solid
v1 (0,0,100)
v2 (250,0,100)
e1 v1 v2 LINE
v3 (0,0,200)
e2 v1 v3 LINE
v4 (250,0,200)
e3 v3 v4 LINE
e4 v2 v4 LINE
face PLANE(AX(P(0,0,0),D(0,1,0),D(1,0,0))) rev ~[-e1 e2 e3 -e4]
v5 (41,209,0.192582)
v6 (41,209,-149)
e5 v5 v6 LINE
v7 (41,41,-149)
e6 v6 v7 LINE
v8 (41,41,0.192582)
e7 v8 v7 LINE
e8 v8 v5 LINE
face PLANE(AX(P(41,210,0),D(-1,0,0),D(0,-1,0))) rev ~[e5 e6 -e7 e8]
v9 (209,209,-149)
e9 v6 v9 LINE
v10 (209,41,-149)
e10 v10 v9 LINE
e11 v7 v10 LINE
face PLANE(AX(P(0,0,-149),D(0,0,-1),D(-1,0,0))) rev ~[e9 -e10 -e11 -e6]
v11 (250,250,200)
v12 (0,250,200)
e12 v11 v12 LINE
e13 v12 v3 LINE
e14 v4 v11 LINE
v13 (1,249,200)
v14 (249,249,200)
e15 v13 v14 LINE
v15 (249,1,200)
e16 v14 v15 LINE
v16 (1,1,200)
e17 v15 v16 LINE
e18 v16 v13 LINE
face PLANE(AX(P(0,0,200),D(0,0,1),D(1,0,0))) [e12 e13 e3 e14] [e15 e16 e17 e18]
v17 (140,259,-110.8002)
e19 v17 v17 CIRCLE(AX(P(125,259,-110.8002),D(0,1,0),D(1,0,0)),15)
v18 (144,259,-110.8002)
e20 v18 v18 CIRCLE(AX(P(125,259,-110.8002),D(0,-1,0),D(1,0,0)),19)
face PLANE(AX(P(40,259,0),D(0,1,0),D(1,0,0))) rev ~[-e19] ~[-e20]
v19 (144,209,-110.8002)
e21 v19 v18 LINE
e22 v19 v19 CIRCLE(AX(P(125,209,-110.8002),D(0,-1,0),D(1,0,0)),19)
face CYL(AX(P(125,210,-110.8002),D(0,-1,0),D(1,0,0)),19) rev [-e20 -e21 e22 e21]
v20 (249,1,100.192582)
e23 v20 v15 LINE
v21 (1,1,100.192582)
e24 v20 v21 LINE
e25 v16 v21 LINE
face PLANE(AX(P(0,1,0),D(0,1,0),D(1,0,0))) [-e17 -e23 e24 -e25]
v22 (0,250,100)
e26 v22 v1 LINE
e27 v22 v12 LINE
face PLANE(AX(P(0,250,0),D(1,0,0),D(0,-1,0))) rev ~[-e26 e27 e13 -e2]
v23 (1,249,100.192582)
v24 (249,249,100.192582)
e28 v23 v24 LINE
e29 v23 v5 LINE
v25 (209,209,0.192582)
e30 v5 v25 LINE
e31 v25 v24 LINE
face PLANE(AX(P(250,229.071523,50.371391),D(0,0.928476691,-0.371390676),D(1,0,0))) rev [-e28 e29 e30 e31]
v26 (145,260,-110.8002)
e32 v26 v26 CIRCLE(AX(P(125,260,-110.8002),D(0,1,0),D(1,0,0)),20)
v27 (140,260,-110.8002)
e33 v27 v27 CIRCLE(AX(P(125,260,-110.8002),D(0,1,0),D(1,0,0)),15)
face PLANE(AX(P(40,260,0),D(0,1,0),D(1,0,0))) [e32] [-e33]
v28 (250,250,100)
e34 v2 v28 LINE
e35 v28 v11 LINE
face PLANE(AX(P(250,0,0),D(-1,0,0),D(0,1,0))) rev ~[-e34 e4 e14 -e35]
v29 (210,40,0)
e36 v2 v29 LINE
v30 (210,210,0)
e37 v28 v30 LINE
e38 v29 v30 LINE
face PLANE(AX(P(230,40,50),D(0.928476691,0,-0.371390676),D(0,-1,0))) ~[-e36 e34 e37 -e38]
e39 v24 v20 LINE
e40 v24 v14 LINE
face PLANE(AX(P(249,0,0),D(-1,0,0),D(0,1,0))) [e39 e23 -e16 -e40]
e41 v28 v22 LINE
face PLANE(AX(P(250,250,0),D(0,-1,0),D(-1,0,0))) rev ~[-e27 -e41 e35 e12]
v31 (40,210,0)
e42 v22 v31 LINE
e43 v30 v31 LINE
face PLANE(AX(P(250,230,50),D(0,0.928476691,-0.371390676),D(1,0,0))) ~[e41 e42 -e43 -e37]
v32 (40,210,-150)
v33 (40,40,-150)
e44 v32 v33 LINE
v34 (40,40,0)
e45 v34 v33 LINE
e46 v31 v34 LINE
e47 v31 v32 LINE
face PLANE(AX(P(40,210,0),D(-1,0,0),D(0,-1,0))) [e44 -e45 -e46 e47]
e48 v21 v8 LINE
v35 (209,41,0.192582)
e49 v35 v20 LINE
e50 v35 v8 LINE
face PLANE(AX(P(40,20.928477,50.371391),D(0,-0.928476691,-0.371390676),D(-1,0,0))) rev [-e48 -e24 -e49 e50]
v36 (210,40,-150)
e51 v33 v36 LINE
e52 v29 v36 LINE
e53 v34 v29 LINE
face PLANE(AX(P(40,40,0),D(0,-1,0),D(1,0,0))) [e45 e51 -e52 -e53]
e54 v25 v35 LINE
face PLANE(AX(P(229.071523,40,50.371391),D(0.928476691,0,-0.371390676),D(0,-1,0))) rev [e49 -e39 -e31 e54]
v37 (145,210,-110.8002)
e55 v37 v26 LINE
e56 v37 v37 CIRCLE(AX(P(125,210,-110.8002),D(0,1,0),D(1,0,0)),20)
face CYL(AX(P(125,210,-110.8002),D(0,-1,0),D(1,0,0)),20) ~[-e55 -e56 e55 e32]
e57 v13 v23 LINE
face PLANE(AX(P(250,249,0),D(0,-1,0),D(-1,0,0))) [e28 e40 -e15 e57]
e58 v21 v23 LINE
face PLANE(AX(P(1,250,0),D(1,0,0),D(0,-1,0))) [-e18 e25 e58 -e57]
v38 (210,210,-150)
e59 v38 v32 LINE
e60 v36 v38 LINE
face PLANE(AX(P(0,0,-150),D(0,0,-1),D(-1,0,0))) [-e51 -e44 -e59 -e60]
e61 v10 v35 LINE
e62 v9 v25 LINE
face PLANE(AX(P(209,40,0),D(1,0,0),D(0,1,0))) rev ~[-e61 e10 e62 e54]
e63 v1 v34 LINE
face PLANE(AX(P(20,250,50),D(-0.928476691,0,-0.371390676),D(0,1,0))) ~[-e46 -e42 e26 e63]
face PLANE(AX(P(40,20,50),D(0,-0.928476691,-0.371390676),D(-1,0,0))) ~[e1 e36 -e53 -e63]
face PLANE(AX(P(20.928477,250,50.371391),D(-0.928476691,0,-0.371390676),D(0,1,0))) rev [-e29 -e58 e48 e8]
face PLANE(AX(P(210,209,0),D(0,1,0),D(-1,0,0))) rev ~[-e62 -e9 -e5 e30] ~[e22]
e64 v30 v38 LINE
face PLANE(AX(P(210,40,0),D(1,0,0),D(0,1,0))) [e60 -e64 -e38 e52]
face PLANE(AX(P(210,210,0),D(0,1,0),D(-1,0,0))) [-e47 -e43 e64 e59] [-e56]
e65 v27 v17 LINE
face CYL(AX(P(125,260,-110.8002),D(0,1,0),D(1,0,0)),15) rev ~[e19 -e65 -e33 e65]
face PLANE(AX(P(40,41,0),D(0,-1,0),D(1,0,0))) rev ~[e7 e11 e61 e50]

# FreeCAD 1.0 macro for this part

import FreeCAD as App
import Part
import Sketcher
Q = App.Units.Quantity


def edges_at(feature, points):
    """Names of the edges that pass closest to the given points."""
    edges = feature.Shape.Edges
    near = lambda p: min(range(len(edges)), key=lambda i: edges[i].distToShape(Part.Vertex(*p))[0])
    return sorted({f"Edge{near(p) + 1}" for p in points})


def faces_at(feature, points):
    """Names of the faces that lie closest to the given points."""
    faces = feature.Shape.Faces
    near = lambda p: min(range(len(faces)), key=lambda i: faces[i].distToShape(Part.Vertex(*p))[0])
    return sorted({f"Face{near(p) + 1}" for p in points})

doc = App.newDocument("Part")
body = doc.addObject("PartDesign::Body", "Body")

# Sketch on XY plane
sketch1 = body.newObject("Sketcher::SketchObject", "Sketch")
sketch1.AttachmentSupport = (doc.getObject("XY_Plane"), [""])
sketch1.MapMode = "FlatFace"
sketch1.addGeometry([
    Part.LineSegment(App.Vector(0, 250, 0), App.Vector(0, 0, 0)),
    Part.LineSegment(App.Vector(0, 0, 0), App.Vector(250, 0, 0)),
    Part.LineSegment(App.Vector(250, 0, 0), App.Vector(250, 250, 0)),
    Part.LineSegment(App.Vector(250, 250, 0), App.Vector(0, 250, 0)),
], False)
sketch1.addConstraint([
    Sketcher.Constraint("Coincident", 0, 2, 1, 1),
    Sketcher.Constraint("Coincident", 1, 2, 2, 1),
    Sketcher.Constraint("Coincident", 2, 2, 3, 1),
    Sketcher.Constraint("Coincident", 3, 2, 0, 1),
    Sketcher.Constraint("Vertical", 0),
    Sketcher.Constraint("Horizontal", 1),
    Sketcher.Constraint("Vertical", 2),
    Sketcher.Constraint("Horizontal", 3),
    Sketcher.Constraint("Coincident", 0, 2, -1, 1),
    Sketcher.Constraint("Equal", 3, 0),
    Sketcher.Constraint("DistanceX", 1, 1, 1, 2, Q("250 mm")),
])
pad1 = body.newObject("PartDesign::Pad", "Pad")
pad1.Profile = sketch1
pad1.Length = 200
doc.recompute()

chamfer = body.newObject("PartDesign::Chamfer", "Chamfer")
chamfer.Base = (pad1, edges_at(pad1, [(0, 125, 0)]))
chamfer.ChamferType = "Two distances"
chamfer.Size = 100
chamfer.Size2 = 40
doc.recompute()

chamfer2 = body.newObject("PartDesign::Chamfer", "Chamfer001")
chamfer2.Base = (chamfer, edges_at(chamfer, [(145, 0, 0)]))
chamfer2.ChamferType = "Two distances"
chamfer2.Size = 100
chamfer2.Size2 = 40
doc.recompute()

chamfer3 = body.newObject("PartDesign::Chamfer", "Chamfer002")
chamfer3.Base = (chamfer2, edges_at(chamfer2, [(145, 250, 0)]))
chamfer3.ChamferType = "Two distances"
chamfer3.Size = 100
chamfer3.Size2 = 40
chamfer3.FlipDirection = True
doc.recompute()

chamfer4 = body.newObject("PartDesign::Chamfer", "Chamfer003")
chamfer4.Base = (chamfer3, edges_at(chamfer3, [(250, 125, 0)]))
chamfer4.ChamferType = "Two distances"
chamfer4.Size = 100
chamfer4.Size2 = 40
chamfer4.FlipDirection = True

# Sketch on XY plane
sketch2 = body.newObject("Sketcher::SketchObject", "Sketch001")
sketch2.AttachmentSupport = (doc.getObject("XY_Plane"), [""])
sketch2.MapMode = "FlatFace"
sketch2.addGeometry([
    Part.LineSegment(App.Vector(210, 40, 0), App.Vector(40, 40, 0)),
    Part.LineSegment(App.Vector(40, 40, 0), App.Vector(40, 210, 0)),
    Part.LineSegment(App.Vector(40, 210, 0), App.Vector(210, 210, 0)),
    Part.LineSegment(App.Vector(210, 210, 0), App.Vector(210, 40, 0)),
], False)
sketch2.addConstraint([
    Sketcher.Constraint("Coincident", 0, 2, 1, 1),
    Sketcher.Constraint("Coincident", 1, 2, 2, 1),
    Sketcher.Constraint("Coincident", 2, 2, 3, 1),
    Sketcher.Constraint("Coincident", 3, 2, 0, 1),
    Sketcher.Constraint("Horizontal", 0),
    Sketcher.Constraint("Vertical", 1),
    Sketcher.Constraint("Horizontal", 2),
    Sketcher.Constraint("Vertical", 3),
    Sketcher.Constraint("Equal", 2, 1),
    Sketcher.Constraint("DistanceX", 0, 2, 0, 1, Q("170 mm")),
    Sketcher.Constraint("DistanceX", -1, 1, 0, 2, Q("40 mm")),
    Sketcher.Constraint("DistanceY", -1, 1, 0, 2, Q("40 mm")),
])
pad2 = body.newObject("PartDesign::Pad", "Pad001")
pad2.Profile = sketch2
pad2.Length = 150
pad2.Reversed = True

# Sketch on XZ plane
sketch3 = body.newObject("Sketcher::SketchObject", "Sketch002")
sketch3.AttachmentSupport = (doc.getObject("XZ_Plane"), [""])
sketch3.MapMode = "FlatFace"
sketch3.AttachmentOffset = App.Placement(App.Vector(0, 0, -210), App.Rotation())
sketch3.addGeometry(Part.Circle(App.Vector(125, -110.8002, 0), App.Vector(0, 0, 1), 20), False)
sketch3.addConstraint([
    Sketcher.Constraint("Diameter", 0, Q("40 mm")),
    Sketcher.Constraint("DistanceX", -1, 1, 0, 3, Q("125 mm")),
    Sketcher.Constraint("DistanceY", 0, 3, -1, 1, Q("110.8002 mm")),
])
pad3 = body.newObject("PartDesign::Pad", "Pad002")
pad3.Profile = sketch3
pad3.Length = 50
pad3.Reversed = True
doc.recompute()

thickness = body.newObject("PartDesign::Thickness", "Thickness")
thickness.Base = (pad3, faces_at(pad3, [(83.333, 166.667, 200)]))
thickness.Value = 1
thickness.Reversed = True
thickness.Join = "Intersection"

# Sketch on XZ plane
sketch4 = body.newObject("Sketcher::SketchObject", "Sketch003")
sketch4.AttachmentSupport = (doc.getObject("XZ_Plane"), [""])
sketch4.MapMode = "FlatFace"
sketch4.AttachmentOffset = App.Placement(App.Vector(0, 0, -260), App.Rotation())
sketch4.addGeometry(Part.Circle(App.Vector(125, -110.8002, 0), App.Vector(0, 0, 1), 15), False)
sketch4.addConstraint([
    Sketcher.Constraint("Diameter", 0, Q("30 mm")),
    Sketcher.Constraint("DistanceX", -1, 1, 0, 3, Q("125 mm")),
    Sketcher.Constraint("DistanceY", 0, 3, -1, 1, Q("110.8002 mm")),
])
pocket1 = body.newObject("PartDesign::Pocket", "Pocket")
pocket1.Profile = sketch4
pocket1.Length = 60
pocket1.Reversed = True

doc.recompute()
